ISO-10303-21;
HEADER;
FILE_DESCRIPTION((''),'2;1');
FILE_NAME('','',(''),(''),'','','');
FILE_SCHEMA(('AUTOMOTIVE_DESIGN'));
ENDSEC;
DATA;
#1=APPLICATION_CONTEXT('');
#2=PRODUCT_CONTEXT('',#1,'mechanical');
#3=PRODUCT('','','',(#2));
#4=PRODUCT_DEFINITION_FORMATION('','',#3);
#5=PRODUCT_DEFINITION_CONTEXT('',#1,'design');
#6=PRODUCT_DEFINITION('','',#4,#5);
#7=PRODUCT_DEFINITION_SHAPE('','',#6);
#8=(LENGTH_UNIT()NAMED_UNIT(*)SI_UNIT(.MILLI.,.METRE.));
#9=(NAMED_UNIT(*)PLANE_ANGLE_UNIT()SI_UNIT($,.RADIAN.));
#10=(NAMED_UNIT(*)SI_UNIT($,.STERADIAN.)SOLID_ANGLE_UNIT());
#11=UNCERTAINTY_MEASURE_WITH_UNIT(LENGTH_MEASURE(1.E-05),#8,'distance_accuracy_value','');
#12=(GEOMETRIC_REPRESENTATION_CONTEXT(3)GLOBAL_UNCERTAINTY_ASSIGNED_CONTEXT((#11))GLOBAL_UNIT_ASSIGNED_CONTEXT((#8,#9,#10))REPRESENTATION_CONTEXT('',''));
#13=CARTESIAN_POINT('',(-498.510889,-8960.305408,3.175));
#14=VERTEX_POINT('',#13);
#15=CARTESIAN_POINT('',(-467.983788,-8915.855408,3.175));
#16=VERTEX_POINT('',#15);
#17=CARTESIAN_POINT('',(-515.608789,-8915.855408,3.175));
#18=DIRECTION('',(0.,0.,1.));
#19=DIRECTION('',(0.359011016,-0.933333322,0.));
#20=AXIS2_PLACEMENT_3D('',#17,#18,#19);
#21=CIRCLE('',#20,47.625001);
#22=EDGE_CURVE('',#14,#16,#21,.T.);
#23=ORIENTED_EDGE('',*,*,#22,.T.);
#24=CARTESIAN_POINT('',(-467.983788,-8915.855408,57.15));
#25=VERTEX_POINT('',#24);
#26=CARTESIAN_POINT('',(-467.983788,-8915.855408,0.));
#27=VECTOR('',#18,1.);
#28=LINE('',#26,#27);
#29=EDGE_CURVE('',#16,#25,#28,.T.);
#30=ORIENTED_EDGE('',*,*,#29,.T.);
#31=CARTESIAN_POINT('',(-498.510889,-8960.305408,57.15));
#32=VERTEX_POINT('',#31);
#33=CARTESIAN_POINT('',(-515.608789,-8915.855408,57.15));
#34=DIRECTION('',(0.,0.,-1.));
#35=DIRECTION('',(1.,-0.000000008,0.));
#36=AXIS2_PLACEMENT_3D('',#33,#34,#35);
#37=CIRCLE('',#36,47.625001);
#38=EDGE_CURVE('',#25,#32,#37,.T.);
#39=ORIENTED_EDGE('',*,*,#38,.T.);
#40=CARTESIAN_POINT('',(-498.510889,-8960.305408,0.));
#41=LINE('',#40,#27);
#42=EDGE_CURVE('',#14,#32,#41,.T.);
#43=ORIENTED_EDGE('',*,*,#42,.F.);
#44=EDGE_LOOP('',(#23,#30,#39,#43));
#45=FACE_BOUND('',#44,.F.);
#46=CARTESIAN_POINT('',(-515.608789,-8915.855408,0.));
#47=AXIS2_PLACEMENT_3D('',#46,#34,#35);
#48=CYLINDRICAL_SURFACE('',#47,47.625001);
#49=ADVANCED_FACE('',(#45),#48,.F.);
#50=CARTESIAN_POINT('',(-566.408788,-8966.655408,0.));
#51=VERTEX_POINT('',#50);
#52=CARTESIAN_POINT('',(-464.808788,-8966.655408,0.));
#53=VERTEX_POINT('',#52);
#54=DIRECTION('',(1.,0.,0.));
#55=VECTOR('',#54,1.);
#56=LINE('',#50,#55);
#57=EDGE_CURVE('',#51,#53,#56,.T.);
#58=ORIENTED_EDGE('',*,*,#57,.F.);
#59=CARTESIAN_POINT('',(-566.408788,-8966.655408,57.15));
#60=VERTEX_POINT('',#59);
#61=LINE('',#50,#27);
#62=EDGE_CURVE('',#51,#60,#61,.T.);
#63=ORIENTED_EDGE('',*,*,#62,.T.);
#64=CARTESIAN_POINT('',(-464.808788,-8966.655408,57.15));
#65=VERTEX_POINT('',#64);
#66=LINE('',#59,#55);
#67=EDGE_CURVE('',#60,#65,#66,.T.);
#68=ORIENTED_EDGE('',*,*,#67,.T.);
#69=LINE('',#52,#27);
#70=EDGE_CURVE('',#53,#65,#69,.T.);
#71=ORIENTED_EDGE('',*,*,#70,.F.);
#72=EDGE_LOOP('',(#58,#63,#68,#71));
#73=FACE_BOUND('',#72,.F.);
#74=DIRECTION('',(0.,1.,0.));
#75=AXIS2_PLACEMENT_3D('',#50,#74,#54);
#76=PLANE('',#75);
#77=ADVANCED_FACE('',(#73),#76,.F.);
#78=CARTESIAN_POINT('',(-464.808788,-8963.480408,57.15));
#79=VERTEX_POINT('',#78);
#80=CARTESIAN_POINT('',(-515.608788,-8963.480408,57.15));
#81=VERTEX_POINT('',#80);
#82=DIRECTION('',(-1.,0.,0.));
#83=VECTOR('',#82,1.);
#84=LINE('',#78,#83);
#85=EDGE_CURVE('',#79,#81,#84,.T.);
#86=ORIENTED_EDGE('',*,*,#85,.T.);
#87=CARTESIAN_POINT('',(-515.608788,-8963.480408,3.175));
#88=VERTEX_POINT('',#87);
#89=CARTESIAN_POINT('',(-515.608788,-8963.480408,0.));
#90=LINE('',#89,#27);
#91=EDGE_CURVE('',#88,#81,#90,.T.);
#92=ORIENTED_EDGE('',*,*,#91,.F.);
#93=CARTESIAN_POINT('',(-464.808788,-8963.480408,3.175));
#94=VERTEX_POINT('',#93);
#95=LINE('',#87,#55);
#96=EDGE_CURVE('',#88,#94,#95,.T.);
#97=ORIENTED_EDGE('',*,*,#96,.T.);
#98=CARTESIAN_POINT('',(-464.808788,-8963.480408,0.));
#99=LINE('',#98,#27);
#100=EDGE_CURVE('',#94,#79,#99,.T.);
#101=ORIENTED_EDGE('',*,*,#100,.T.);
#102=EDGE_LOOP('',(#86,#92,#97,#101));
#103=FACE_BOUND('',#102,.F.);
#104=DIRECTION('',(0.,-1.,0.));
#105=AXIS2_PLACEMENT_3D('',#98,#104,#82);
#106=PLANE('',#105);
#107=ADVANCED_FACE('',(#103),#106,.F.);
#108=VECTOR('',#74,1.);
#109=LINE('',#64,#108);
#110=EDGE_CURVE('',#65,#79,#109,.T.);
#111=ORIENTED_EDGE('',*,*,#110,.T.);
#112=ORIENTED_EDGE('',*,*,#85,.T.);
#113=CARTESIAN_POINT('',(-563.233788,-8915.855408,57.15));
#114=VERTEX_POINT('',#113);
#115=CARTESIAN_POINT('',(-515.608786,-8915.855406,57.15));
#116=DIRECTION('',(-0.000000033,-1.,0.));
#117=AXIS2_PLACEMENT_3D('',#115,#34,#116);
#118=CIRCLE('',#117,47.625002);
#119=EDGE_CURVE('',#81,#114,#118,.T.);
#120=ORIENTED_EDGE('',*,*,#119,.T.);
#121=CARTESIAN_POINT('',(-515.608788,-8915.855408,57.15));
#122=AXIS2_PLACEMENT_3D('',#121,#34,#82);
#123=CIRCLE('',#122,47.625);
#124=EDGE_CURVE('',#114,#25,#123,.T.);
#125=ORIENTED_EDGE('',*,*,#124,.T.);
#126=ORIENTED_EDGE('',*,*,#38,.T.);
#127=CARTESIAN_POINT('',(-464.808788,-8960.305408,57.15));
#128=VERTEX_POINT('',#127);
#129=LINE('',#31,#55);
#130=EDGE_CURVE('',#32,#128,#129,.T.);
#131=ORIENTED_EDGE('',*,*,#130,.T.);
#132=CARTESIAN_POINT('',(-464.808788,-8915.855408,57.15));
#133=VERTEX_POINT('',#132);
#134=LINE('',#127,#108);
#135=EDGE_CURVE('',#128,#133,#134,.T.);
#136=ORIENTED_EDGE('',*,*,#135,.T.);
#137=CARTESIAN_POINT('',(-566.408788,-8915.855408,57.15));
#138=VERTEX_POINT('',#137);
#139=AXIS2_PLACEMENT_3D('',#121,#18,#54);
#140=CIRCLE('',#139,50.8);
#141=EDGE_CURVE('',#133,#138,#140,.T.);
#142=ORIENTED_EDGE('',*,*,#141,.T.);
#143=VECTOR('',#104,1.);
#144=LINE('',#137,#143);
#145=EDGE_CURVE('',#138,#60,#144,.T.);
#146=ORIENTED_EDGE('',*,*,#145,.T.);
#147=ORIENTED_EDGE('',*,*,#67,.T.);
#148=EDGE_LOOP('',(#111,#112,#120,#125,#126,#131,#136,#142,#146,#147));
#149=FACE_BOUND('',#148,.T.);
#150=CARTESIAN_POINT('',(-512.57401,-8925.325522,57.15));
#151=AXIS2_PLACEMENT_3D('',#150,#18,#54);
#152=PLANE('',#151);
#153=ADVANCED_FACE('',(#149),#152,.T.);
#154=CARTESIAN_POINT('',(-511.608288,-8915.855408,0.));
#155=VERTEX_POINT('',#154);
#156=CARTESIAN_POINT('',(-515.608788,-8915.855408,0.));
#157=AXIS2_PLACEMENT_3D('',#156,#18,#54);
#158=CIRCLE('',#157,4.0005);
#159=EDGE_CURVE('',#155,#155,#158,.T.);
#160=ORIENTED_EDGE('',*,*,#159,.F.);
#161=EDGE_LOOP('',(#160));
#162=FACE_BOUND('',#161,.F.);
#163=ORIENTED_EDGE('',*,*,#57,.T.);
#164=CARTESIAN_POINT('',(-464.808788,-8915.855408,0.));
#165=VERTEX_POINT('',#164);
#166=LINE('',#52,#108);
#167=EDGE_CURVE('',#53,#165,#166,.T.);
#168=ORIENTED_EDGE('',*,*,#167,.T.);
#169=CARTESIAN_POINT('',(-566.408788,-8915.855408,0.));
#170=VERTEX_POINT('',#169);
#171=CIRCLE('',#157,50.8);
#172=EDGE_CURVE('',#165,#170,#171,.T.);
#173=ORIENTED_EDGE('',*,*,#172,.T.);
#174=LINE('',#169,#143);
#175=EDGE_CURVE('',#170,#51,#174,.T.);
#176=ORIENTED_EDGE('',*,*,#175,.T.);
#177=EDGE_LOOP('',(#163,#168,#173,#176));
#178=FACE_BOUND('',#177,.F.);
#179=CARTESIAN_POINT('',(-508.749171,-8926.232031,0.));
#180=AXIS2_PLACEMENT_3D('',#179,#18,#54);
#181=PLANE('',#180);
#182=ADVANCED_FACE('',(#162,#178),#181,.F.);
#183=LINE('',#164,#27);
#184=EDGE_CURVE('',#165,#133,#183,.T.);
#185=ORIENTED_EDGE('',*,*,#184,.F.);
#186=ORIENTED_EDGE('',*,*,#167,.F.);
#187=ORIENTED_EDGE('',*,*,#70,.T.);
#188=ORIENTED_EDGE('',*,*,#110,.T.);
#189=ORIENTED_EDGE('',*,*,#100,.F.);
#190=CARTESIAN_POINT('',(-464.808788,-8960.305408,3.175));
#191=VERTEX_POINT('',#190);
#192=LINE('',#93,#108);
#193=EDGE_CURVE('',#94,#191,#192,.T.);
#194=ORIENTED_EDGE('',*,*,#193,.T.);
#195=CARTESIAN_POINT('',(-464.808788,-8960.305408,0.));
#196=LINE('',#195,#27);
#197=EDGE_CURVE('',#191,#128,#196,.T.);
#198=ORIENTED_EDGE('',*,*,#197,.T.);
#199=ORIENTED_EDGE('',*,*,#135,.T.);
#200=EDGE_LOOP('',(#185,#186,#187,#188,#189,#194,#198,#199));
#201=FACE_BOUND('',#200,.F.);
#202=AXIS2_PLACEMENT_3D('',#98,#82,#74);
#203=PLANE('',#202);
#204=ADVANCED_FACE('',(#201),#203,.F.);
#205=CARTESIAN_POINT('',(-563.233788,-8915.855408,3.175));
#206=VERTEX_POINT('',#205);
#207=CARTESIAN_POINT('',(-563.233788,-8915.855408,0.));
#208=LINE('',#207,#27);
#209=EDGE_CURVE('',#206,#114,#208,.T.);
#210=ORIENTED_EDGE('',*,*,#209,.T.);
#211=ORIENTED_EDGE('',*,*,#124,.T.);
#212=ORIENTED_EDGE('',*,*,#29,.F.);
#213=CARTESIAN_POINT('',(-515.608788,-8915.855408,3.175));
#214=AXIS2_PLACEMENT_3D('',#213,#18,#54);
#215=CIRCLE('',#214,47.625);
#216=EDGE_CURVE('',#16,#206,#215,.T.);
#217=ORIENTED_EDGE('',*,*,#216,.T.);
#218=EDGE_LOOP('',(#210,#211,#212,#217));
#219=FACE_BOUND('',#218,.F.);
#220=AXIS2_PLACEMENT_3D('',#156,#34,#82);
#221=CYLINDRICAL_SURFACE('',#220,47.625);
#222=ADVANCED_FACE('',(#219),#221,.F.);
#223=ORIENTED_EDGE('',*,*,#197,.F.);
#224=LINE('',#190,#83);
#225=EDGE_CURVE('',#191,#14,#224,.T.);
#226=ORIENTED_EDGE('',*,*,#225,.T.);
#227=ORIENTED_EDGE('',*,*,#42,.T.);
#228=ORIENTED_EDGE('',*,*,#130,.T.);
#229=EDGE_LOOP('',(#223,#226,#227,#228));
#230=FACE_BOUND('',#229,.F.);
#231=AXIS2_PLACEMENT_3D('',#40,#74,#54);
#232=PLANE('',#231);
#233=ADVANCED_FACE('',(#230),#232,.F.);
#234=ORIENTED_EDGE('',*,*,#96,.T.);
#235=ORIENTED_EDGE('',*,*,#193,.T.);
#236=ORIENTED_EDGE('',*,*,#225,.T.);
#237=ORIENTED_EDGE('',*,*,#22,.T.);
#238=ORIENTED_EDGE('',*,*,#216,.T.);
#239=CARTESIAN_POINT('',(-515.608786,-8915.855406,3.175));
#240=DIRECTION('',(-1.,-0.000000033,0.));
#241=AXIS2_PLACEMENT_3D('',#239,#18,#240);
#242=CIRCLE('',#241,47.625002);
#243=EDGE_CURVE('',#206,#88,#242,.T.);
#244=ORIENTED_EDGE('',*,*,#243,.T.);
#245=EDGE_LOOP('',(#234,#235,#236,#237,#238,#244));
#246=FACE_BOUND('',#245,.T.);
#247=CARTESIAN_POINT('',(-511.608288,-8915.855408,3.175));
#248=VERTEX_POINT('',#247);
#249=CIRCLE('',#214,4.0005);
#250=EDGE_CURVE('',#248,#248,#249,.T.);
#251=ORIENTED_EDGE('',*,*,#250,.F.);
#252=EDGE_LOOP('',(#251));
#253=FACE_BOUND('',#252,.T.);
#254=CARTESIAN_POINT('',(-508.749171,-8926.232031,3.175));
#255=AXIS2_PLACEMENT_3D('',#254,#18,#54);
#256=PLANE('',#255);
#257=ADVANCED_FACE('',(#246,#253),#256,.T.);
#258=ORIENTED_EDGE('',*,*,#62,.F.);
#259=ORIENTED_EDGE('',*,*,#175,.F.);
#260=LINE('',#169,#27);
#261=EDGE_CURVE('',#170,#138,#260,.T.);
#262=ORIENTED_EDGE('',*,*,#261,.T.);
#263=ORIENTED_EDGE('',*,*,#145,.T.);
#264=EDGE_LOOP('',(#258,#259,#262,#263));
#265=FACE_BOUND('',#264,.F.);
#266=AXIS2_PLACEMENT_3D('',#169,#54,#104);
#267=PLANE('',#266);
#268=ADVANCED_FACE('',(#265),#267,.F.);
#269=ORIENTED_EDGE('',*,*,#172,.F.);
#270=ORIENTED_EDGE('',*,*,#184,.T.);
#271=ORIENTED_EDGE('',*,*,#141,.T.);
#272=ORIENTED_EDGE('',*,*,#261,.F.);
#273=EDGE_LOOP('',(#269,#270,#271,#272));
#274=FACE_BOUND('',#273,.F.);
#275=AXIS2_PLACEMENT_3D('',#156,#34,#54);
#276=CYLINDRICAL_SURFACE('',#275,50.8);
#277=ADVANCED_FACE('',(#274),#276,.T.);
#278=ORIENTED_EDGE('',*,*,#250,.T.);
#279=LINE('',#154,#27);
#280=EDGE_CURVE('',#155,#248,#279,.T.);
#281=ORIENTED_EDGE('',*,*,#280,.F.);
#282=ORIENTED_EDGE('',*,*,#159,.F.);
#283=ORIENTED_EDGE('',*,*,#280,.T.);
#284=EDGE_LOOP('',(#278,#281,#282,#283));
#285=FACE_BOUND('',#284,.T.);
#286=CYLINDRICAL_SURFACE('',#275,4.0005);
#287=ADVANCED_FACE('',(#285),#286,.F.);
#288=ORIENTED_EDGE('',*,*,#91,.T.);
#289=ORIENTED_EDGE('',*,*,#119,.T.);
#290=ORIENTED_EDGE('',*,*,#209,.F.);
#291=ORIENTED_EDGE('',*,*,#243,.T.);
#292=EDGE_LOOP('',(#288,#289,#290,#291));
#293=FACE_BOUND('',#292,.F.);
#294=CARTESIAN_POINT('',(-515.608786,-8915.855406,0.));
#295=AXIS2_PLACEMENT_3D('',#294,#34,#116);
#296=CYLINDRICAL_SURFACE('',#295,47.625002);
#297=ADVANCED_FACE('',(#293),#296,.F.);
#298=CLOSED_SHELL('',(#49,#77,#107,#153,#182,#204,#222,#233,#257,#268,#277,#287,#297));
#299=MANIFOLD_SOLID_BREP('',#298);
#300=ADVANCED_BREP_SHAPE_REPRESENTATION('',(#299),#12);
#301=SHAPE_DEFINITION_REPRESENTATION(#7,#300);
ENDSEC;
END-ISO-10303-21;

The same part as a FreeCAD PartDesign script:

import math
import FreeCAD as App
import Part
import Sketcher
Q = App.Units.Quantity

doc = App.newDocument("Part")
body = doc.addObject("PartDesign::Body", "Body")

sketch1 = body.newObject("Sketcher::SketchObject", "Sketch")
sketch1.AttachmentSupport = (doc.getObject("XY_Plane"), [""])
sketch1.MapMode = "FlatFace"
sketch1.addGeometry(Part.LineSegment(App.Vector(-464.8, -8960.3, 0), App.Vector(-464.8, -8915.9, 0)), False)
sketch1.addGeometry(Part.ArcOfCircle(Part.Circle(App.Vector(-515.6, -8915.9, 0), App.Vector(0, 0, 1), 50.8), math.radians(0), math.radians(180)), False)
sketch1.addGeometry(Part.LineSegment(App.Vector(-566.4, -8915.9, 0), App.Vector(-566.4, -8966.7, 0)), False)
sketch1.addGeometry(Part.LineSegment(App.Vector(-566.4, -8966.7, 0), App.Vector(-464.8, -8966.7, 0)), False)
sketch1.addGeometry(Part.LineSegment(App.Vector(-464.8, -8966.7, 0), App.Vector(-464.8, -8963.5, 0)), False)
sketch1.addGeometry(Part.LineSegment(App.Vector(-464.8, -8963.5, 0), App.Vector(-515.6, -8963.5, 0)), False)
sketch1.addGeometry(Part.ArcOfCircle(Part.Circle(App.Vector(-515.6, -8915.9, 0), App.Vector(0, 0, 1), 47.6), math.radians(-180), math.radians(-90)), False)
sketch1.addGeometry(Part.ArcOfCircle(Part.Circle(App.Vector(-515.6, -8915.9, 0), App.Vector(0, 0, 1), 47.6), math.radians(0), math.radians(180)), False)
sketch1.addGeometry(Part.ArcOfCircle(Part.Circle(App.Vector(-515.6, -8915.9, 0), App.Vector(0, 0, 1), 47.6), math.radians(-69), math.radians(0)), False)
sketch1.addGeometry(Part.LineSegment(App.Vector(-498.5, -8960.3, 0), App.Vector(-464.8, -8960.3, 0)), False)
sketch1.addConstraint(Sketcher.Constraint("Tangent", 0, 2, 1, 1))
sketch1.addConstraint(Sketcher.Constraint("Tangent", 1, 2, 2, 1))
sketch1.addConstraint(Sketcher.Constraint("Coincident", 2, 2, 3, 1))
sketch1.addConstraint(Sketcher.Constraint("Coincident", 3, 2, 4, 1))
sketch1.addConstraint(Sketcher.Constraint("Coincident", 4, 2, 5, 1))
sketch1.addConstraint(Sketcher.Constraint("Tangent", 5, 2, 6, 2))
sketch1.addConstraint(Sketcher.Constraint("Tangent", 6, 1, 7, 2))
sketch1.addConstraint(Sketcher.Constraint("Tangent", 7, 1, 8, 2))
sketch1.addConstraint(Sketcher.Constraint("Coincident", 8, 1, 9, 1))
sketch1.addConstraint(Sketcher.Constraint("Coincident", 9, 2, 0, 1))
sketch1.addConstraint(Sketcher.Constraint("Vertical", 0))
sketch1.addConstraint(Sketcher.Constraint("Vertical", 2))
sketch1.addConstraint(Sketcher.Constraint("Horizontal", 3))
sketch1.addConstraint(Sketcher.Constraint("Vertical", 4))
sketch1.addConstraint(Sketcher.Constraint("Horizontal", 5))
sketch1.addConstraint(Sketcher.Constraint("Horizontal", 9))
sketch1.addConstraint(Sketcher.Constraint("Coincident", 6, 3, 1, 3))
sketch1.addConstraint(Sketcher.Constraint("Equal", 6, 7))
sketch1.addConstraint(Sketcher.Constraint("Equal", 7, 8))
sketch1.addConstraint(Sketcher.Constraint("Horizontal", 1, 2, 6, 1))
sketch1.addConstraint(Sketcher.Constraint("Horizontal", 6, 1, 7, 1))
sketch1.addConstraint(Sketcher.Constraint("Vertical", 0, 2, 3, 2))
sketch1.addConstraint(Sketcher.Constraint("Equal", 5, 2))
sketch1.addConstraint(Sketcher.Constraint("Radius", 1, Q("2 in")))
sketch1.addConstraint(Sketcher.Constraint("Radius", 6, Q("1.8750001 in")))
sketch1.addConstraint(Sketcher.Constraint("DistanceY", 0, 1, 0, 2, Q("1.75 in")))
sketch1.addConstraint(Sketcher.Constraint("DistanceX", 1, 3, -1, 1, Q("515.608788 mm")))
sketch1.addConstraint(Sketcher.Constraint("DistanceY", 2, 2, -1, 1, Q("8966.655408 mm")))
pad1 = body.newObject("PartDesign::Pad", "Pad")
pad1.Profile = sketch1
pad1.Length = Q("2.25 in")

sketch2 = body.newObject("Sketcher::SketchObject", "Sketch001")
sketch2.AttachmentSupport = (doc.getObject("XY_Plane"), [""])
sketch2.MapMode = "FlatFace"
sketch2.addGeometry(Part.LineSegment(App.Vector(-464.8, -8963.5, 0), App.Vector(-464.8, -8960.3, 0)), False)
sketch2.addGeometry(Part.LineSegment(App.Vector(-464.8, -8960.3, 0), App.Vector(-498.5, -8960.3, 0)), False)
sketch2.addGeometry(Part.ArcOfCircle(Part.Circle(App.Vector(-515.6, -8915.9, 0), App.Vector(0, 0, 1), 47.6), math.radians(-69), math.radians(0)), False)
sketch2.addGeometry(Part.ArcOfCircle(Part.Circle(App.Vector(-515.6, -8915.9, 0), App.Vector(0, 0, 1), 47.6), math.radians(0), math.radians(180)), False)
sketch2.addGeometry(Part.ArcOfCircle(Part.Circle(App.Vector(-515.6, -8915.9, 0), App.Vector(0, 0, 1), 47.6), math.radians(-180), math.radians(-90)), False)
sketch2.addGeometry(Part.LineSegment(App.Vector(-515.6, -8963.5, 0), App.Vector(-464.8, -8963.5, 0)), False)
sketch2.addGeometry(Part.Circle(App.Vector(-515.6, -8915.9, 0), App.Vector(0, 0, 1), 4), False)
sketch2.addConstraint(Sketcher.Constraint("Coincident", 0, 2, 1, 1))
sketch2.addConstraint(Sketcher.Constraint("Coincident", 1, 2, 2, 1))
sketch2.addConstraint(Sketcher.Constraint("Tangent", 2, 2, 3, 1))
sketch2.addConstraint(Sketcher.Constraint("Tangent", 3, 2, 4, 1))
sketch2.addConstraint(Sketcher.Constraint("Tangent", 4, 2, 5, 1))
sketch2.addConstraint(Sketcher.Constraint("Coincident", 5, 2, 0, 1))
sketch2.addConstraint(Sketcher.Constraint("Vertical", 0))
sketch2.addConstraint(Sketcher.Constraint("Horizontal", 1))
sketch2.addConstraint(Sketcher.Constraint("Horizontal", 5))
sketch2.addConstraint(Sketcher.Constraint("Coincident", 6, 3, 2, 3))
sketch2.addConstraint(Sketcher.Constraint("Equal", 2, 3))
sketch2.addConstraint(Sketcher.Constraint("Equal", 3, 4))
sketch2.addConstraint(Sketcher.Constraint("Horizontal", 6, 3, 2, 2))
sketch2.addConstraint(Sketcher.Constraint("Horizontal", 2, 2, 3, 2))
sketch2.addConstraint(Sketcher.Constraint("DistanceX", 5, 1, 5, 2, Q("2 in")))
sketch2.addConstraint(Sketcher.Constraint("Diameter", 6, Q("0.315 in")))
sketch2.addConstraint(Sketcher.Constraint("Radius", 2, Q("1.875 in")))
sketch2.addConstraint(Sketcher.Constraint("DistanceY", 0, 1, 0, 2, Q("0.125 in")))
sketch2.addConstraint(Sketcher.Constraint("DistanceX", 2, 3, -1, 1, Q("515.608789 mm")))
sketch2.addConstraint(Sketcher.Constraint("DistanceY", 2, 3, -1, 1, Q("8915.855408 mm")))
pad2 = body.newObject("PartDesign::Pad", "Pad001")
pad2.Profile = sketch2
pad2.Length = Q("0.125 in")

doc.recompute()
